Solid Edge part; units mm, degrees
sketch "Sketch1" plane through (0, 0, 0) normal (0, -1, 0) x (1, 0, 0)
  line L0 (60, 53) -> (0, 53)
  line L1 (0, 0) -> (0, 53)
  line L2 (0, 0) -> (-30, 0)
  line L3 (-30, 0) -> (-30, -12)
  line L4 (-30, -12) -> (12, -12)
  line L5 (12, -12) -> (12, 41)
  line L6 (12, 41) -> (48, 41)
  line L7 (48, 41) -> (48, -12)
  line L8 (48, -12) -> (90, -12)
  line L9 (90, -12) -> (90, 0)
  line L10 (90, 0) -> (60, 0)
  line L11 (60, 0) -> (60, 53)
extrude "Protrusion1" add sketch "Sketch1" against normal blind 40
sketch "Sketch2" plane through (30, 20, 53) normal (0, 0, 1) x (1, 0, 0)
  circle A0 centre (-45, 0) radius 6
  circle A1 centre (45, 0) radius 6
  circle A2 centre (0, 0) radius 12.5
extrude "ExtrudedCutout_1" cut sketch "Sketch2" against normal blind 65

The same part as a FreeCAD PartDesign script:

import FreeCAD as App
import Part
import Sketcher


def add_polygon(sketch, points):
    """Adds a closed chain of lines whose ends are joined by coincident constraints."""
    first, n = sketch.GeometryCount, len(points)
    for a, b in zip(points, points[1:] + points[:1]):
        sketch.addGeometry(Part.LineSegment(App.Vector(*a, 0), App.Vector(*b, 0)), False)
    for i in range(n):
        sketch.addConstraint(Sketcher.Constraint("Coincident", first + i, 2, first + (i + 1) % n, 1))

doc = App.newDocument("Part")
body = doc.addObject("PartDesign::Body", "Body")

sketch1 = body.newObject("Sketcher::SketchObject", "Sketch")
sketch1.AttachmentSupport = (doc.getObject("XZ_Plane"), [""])
sketch1.MapMode = "FlatFace"
add_polygon(sketch1, [(60, 0), (60, 53), (0, 53), (0, 0), (-30, 0), (-30, -12), (12, -12), (12, 41), (48, 41), (48, -12), (90, -12), (90, 0)])
sketch1.addConstraint([
    Sketcher.Constraint("Vertical", 0),
    Sketcher.Constraint("Horizontal", 1),
    Sketcher.Constraint("Vertical", 2),
    Sketcher.Constraint("Horizontal", 3),
    Sketcher.Constraint("Vertical", 4),
    Sketcher.Constraint("Horizontal", 5),
    Sketcher.Constraint("Vertical", 6),
    Sketcher.Constraint("Horizontal", 7),
    Sketcher.Constraint("Vertical", 8),
    Sketcher.Constraint("Horizontal", 9),
    Sketcher.Constraint("Vertical", 10),
    Sketcher.Constraint("Horizontal", 11),
    Sketcher.Constraint("Coincident", 2, 2, -1, 1),
    Sketcher.Constraint("PointOnObject", 10, 2, -1),
    Sketcher.Constraint("Horizontal", 5, 2, 8, 2),
    Sketcher.Constraint("Equal", 5, 9),
    Sketcher.Constraint("Equal", 3, 11),
    Sketcher.Constraint("Equal", 2, 6),
    Sketcher.Constraint("DistanceX", 1, 2, 1, 1, 60.0),
    Sketcher.Constraint("DistanceX", 3, 2, 3, 1, 30.0),
    Sketcher.Constraint("DistanceX", 5, 1, 5, 2, 42.0),
    Sketcher.Constraint("DistanceY", 0, 1, 0, 2, 53.0),
    Sketcher.Constraint("DistanceY", 4, 2, 4, 1, 12.0),
])
pad1 = body.newObject("PartDesign::Pad", "Pad")
pad1.Profile = sketch1
pad1.Length = 40
pad1.Reversed = True

sketch2 = body.newObject("Sketcher::SketchObject", "Sketch001")
sketch2.AttachmentSupport = (doc.getObject("XY_Plane"), [""])
sketch2.MapMode = "FlatFace"
sketch2.AttachmentOffset = App.Placement(App.Vector(0, 0, 53), App.Rotation())
sketch2.addGeometry([
    Part.Circle(App.Vector(-15, 20, 0), App.Vector(0, 0, 1), 6),
    Part.Circle(App.Vector(75, 20, 0), App.Vector(0, 0, 1), 6),
    Part.Circle(App.Vector(30, 20, 0), App.Vector(0, 0, 1), 12.5),
], False)
sketch2.addConstraint([
    Sketcher.Constraint("Equal", 0, 1),
    Sketcher.Constraint("Horizontal", 0, 3, 1, 3),
    Sketcher.Constraint("Horizontal", 1, 3, 2, 3),
    Sketcher.Constraint("Diameter", 0, 12.0),
    Sketcher.Constraint("Diameter", 2, 25.0),
    Sketcher.Constraint("DistanceX", 0, 3, -1, 1, 15.0),
    Sketcher.Constraint("DistanceY", -1, 1, 0, 3, 20.0),
    Sketcher.Constraint("DistanceX", -1, 1, 1, 3, 75.0),
    Sketcher.Constraint("DistanceX", -1, 1, 2, 3, 30.0),
])
pocket1 = body.newObject("PartDesign::Pocket", "Pocket")
pocket1.Profile = sketch2
pocket1.Length = 65

doc.recompute()
